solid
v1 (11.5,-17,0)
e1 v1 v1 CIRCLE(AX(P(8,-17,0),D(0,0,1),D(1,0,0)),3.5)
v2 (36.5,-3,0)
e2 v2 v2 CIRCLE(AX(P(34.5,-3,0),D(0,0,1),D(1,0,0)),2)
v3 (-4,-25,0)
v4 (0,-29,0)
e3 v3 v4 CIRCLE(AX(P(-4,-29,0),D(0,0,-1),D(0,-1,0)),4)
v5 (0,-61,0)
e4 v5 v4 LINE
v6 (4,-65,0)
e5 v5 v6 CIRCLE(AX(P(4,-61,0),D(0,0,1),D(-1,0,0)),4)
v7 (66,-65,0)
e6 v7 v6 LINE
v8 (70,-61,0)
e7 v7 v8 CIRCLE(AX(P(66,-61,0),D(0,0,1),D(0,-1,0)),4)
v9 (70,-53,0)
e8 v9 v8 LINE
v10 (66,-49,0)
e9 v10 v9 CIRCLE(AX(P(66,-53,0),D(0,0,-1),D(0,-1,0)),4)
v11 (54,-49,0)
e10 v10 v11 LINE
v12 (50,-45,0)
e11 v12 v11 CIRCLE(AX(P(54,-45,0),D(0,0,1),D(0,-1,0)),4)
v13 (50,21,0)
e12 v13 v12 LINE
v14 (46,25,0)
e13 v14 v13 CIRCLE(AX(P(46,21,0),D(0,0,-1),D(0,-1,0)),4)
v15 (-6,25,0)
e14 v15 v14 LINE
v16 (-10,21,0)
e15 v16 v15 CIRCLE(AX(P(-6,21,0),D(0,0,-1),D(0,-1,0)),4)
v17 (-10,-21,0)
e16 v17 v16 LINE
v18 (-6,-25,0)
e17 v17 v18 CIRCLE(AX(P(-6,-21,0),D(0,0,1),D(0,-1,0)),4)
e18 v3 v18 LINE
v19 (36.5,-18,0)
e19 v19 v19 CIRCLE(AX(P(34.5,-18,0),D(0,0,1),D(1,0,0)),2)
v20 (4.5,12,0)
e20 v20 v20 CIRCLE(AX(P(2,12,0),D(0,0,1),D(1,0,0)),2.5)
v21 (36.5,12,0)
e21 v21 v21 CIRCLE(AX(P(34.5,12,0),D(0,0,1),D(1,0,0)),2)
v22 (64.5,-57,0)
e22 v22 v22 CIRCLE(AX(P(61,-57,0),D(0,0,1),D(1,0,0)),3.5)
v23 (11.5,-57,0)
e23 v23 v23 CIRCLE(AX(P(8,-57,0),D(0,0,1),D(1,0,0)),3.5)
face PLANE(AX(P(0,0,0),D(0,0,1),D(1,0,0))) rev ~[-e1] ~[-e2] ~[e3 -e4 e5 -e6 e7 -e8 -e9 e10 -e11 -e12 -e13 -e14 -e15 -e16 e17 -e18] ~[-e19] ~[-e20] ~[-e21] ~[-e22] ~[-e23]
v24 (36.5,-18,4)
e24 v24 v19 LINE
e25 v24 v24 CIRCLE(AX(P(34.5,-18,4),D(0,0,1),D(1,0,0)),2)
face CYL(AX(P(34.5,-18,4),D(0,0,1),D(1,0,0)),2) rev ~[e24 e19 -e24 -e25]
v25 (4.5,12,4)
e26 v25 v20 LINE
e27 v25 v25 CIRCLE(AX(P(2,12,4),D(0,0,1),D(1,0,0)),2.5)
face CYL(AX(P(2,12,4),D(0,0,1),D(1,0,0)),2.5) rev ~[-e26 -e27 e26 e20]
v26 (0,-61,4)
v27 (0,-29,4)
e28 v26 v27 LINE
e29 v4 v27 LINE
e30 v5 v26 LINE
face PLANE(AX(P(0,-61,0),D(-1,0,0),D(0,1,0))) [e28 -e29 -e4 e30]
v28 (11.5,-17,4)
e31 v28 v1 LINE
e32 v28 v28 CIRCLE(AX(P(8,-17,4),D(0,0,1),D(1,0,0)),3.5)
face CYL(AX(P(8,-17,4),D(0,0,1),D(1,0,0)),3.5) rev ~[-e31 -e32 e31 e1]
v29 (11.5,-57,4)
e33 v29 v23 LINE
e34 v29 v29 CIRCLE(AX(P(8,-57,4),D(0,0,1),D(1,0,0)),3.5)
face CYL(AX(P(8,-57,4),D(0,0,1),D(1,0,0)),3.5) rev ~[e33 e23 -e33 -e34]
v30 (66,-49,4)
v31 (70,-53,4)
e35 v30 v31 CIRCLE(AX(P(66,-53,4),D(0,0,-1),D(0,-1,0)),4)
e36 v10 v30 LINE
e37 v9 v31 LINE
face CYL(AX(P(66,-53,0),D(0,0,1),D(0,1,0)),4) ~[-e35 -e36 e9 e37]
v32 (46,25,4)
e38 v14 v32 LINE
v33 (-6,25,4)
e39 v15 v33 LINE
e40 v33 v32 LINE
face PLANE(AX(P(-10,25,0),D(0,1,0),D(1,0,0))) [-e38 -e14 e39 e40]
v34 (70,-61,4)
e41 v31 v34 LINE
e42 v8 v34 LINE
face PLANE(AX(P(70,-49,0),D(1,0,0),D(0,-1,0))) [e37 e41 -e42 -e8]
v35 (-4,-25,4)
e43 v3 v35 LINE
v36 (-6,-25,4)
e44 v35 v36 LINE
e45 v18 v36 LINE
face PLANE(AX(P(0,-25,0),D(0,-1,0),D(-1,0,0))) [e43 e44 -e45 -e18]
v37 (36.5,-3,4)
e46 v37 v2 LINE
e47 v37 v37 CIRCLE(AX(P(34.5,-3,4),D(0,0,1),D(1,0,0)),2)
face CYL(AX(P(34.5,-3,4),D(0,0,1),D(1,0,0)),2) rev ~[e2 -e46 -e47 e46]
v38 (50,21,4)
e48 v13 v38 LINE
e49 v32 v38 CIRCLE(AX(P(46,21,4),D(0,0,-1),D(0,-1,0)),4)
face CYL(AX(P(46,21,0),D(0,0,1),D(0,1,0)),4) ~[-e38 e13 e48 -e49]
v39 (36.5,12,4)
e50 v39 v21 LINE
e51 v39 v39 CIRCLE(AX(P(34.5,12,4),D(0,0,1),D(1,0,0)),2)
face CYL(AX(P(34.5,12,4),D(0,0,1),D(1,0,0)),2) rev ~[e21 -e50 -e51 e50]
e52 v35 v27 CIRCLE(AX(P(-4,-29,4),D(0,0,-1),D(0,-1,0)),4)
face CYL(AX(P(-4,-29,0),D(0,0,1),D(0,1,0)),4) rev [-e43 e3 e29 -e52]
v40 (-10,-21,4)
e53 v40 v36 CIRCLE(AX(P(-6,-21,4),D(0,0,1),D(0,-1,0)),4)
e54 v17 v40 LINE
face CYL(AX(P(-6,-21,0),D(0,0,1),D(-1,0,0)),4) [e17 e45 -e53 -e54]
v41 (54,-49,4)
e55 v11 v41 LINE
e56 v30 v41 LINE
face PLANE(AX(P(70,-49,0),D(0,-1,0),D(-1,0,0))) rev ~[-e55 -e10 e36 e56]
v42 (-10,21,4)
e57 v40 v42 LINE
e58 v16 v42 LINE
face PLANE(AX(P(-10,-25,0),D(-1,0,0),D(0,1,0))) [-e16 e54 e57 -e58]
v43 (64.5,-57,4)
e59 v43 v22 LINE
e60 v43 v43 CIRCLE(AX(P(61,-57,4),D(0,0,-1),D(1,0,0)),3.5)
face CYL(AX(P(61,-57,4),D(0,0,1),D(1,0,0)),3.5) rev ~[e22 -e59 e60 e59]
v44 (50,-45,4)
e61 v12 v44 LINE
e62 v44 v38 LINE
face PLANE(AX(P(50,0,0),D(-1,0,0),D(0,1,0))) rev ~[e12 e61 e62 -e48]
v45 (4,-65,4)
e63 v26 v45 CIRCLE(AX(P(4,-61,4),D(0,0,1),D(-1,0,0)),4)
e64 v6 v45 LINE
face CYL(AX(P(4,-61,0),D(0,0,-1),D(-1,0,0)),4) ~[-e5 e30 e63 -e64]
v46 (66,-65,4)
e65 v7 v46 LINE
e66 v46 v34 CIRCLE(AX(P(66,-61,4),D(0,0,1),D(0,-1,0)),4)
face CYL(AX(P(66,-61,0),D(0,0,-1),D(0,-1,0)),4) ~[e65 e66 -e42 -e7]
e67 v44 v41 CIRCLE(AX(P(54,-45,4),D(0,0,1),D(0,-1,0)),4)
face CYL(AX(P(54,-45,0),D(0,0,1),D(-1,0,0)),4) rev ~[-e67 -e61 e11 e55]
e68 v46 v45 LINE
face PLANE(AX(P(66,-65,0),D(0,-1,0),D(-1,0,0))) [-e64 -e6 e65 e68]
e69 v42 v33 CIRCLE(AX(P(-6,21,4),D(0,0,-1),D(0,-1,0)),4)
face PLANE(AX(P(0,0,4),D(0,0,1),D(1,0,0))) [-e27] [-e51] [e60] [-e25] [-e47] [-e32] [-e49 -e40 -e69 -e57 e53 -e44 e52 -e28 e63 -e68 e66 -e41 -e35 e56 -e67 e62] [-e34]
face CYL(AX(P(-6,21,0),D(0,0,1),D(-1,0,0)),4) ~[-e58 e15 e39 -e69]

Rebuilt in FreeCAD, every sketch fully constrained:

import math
import FreeCAD as App
import Part
import Sketcher
Q = App.Units.Quantity


def edges_at(feature, points):
    """Names of the edges that pass closest to the given points."""
    edges = feature.Shape.Edges
    near = lambda p: min(range(len(edges)), key=lambda i: edges[i].distToShape(Part.Vertex(*p))[0])
    return sorted({f"Edge{near(p) + 1}" for p in points})

doc = App.newDocument("Part")
body = doc.addObject("PartDesign::Body", "Body")

# Sketch on XY plane
sketch1 = doc.addObject("Sketcher::SketchObject", "Sketch")
body.addObject(sketch1)
sketch1.AttachmentSupport = (doc.XY_Plane, [""])
sketch1.MapMode = "FlatFace"
sketch1.addGeometry([
    Part.LineSegment(App.Vector(-10, -25, 0), App.Vector(0, -25, 0)),  # 0
    Part.LineSegment(App.Vector(0, -25, 0), App.Vector(0, -61, 0)),  # 1
    Part.ArcOfCircle(Part.Circle(App.Vector(4, -61, 0), App.Vector(0, 0, 1), 4), math.radians(180), math.radians(270)),  # 2
    Part.LineSegment(App.Vector(4, -65, 0), App.Vector(66, -65, 0)),  # 3
    Part.ArcOfCircle(Part.Circle(App.Vector(66, -61, 0), App.Vector(0, 0, 1), 4), math.radians(-90), math.radians(0)),  # 4
    Part.LineSegment(App.Vector(70, -61, 0), App.Vector(70, -49, 0)),  # 5
    Part.LineSegment(App.Vector(70, -49, 0), App.Vector(50, -49, 0)),  # 6
    Part.LineSegment(App.Vector(50, -49, 0), App.Vector(50, 25, 0)),  # 7
    Part.LineSegment(App.Vector(50, 25, 0), App.Vector(-10, 25, 0)),  # 8
    Part.LineSegment(App.Vector(-10, 25, 0), App.Vector(-10, -25, 0)),  # 9
], False)
sketch1.addConstraint([
    Sketcher.Constraint("Coincident", 0, 2, 1, 1),
    Sketcher.Constraint("Tangent", 1, 2, 2, 1),
    Sketcher.Constraint("Tangent", 2, 2, 3, 1),
    Sketcher.Constraint("Tangent", 3, 2, 4, 1),
    Sketcher.Constraint("Tangent", 4, 2, 5, 1),
    Sketcher.Constraint("Coincident", 5, 2, 6, 1),
    Sketcher.Constraint("Coincident", 6, 2, 7, 1),
    Sketcher.Constraint("Coincident", 7, 2, 8, 1),
    Sketcher.Constraint("Coincident", 8, 2, 9, 1),
    Sketcher.Constraint("Coincident", 9, 2, 0, 1),
    Sketcher.Constraint("Horizontal", 0),
    Sketcher.Constraint("Vertical", 1),
    Sketcher.Constraint("Horizontal", 3),
    Sketcher.Constraint("Vertical", 5),
    Sketcher.Constraint("Horizontal", 6),
    Sketcher.Constraint("Vertical", 7),
    Sketcher.Constraint("Horizontal", 8),
    Sketcher.Constraint("Vertical", 9),
    Sketcher.Constraint("Equal", 2, 4),
    Sketcher.Constraint("PointOnObject", 0, 2, -2),
    Sketcher.Constraint("Radius", 2, Q("4 mm")),
    Sketcher.Constraint("DistanceX", 6, 2, 6, 1, Q("20 mm")),
    Sketcher.Constraint("DistanceY", 9, 2, 9, 1, Q("50 mm")),
    Sketcher.Constraint("DistanceY", 0, 2, -1, 1, Q("25 mm")),
    Sketcher.Constraint("DistanceY", 2, 2, -1, 1, Q("65 mm")),
    Sketcher.Constraint("DistanceX", -1, 1, 4, 2, Q("70 mm")),
    Sketcher.Constraint("DistanceY", 3, 2, 5, 2, Q("16 mm")),
    Sketcher.Constraint("DistanceX", 0, 1, 0, 2, Q("10 mm")),
])
pad1 = doc.addObject("PartDesign::Pad", "Pad")
body.addObject(pad1)
pad1.Profile = sketch1
pad1.Length = 4

# Sketch on XY plane
sketch2 = doc.addObject("Sketcher::SketchObject", "Sketch001")
body.addObject(sketch2)
sketch2.AttachmentSupport = (doc.XY_Plane, [""])
sketch2.MapMode = "FlatFace"
sketch2.AttachmentOffset = App.Placement(App.Vector(0, 0, 4), App.Rotation())
sketch2.addGeometry([
    Part.Circle(App.Vector(61, -57, 0), App.Vector(0, 0, 1), 3.5),  # 0
    Part.Circle(App.Vector(8, -57, 0), App.Vector(0, 0, 1), 3.5),  # 1
    Part.Circle(App.Vector(61, -17, 0), App.Vector(0, 0, 1), 3.5),  # 2
    Part.Circle(App.Vector(8, -17, 0), App.Vector(0, 0, 1), 3.5),  # 3
    Part.Circle(App.Vector(54.5, 12, 0), App.Vector(0, 0, 1), 2.5),  # 4
    Part.Circle(App.Vector(2, 12, 0), App.Vector(0, 0, 1), 2.5),  # 5
], False)
sketch2.addConstraint([
    Sketcher.Constraint("Equal", 0, 1),
    Sketcher.Constraint("Equal", 1, 2),
    Sketcher.Constraint("Equal", 2, 3),
    Sketcher.Constraint("Equal", 4, 5),
    Sketcher.Constraint("Horizontal", 0, 3, 1, 3),
    Sketcher.Constraint("Horizontal", 2, 3, 3, 3),
    Sketcher.Constraint("Horizontal", 4, 3, 5, 3),
    Sketcher.Constraint("Vertical", 0, 3, 2, 3),
    Sketcher.Constraint("Vertical", 1, 3, 3, 3),
    Sketcher.Constraint("Diameter", 0, Q("7 mm")),
    Sketcher.Constraint("Diameter", 4, Q("5 mm")),
    Sketcher.Constraint("DistanceX", -1, 1, 1, 3, Q("8 mm")),
    Sketcher.Constraint("DistanceY", -1, 1, 4, 3, Q("12 mm")),
    Sketcher.Constraint("DistanceX", 1, 3, 0, 3, Q("53 mm")),
    Sketcher.Constraint("DistanceY", 0, 3, 2, 3, Q("40 mm")),
    Sketcher.Constraint("DistanceY", 2, 3, 4, 3, Q("29 mm")),
    Sketcher.Constraint("DistanceX", 4, 3, 2, 3, Q("6.5 mm")),
    Sketcher.Constraint("DistanceX", -1, 1, 5, 3, Q("2 mm")),
])
pocket1 = doc.addObject("PartDesign::Pocket", "Pocket")
body.addObject(pocket1)
pocket1.Profile = sketch2
pocket1.Length = 4
doc.recompute()

fillet = doc.addObject("PartDesign::Fillet", "Fillet")
body.addObject(fillet)
fillet.Base = (pocket1, edges_at(pocket1, [(-10, 25, 2)]))
fillet.Radius = 4

# Sketch on XY plane
sketch3 = doc.addObject("Sketcher::SketchObject", "Sketch002")
body.addObject(sketch3)
sketch3.AttachmentSupport = (doc.XY_Plane, [""])
sketch3.MapMode = "FlatFace"
sketch3.AttachmentOffset = App.Placement(App.Vector(0, 0, 4), App.Rotation())
sketch3.addGeometry([
    Part.Circle(App.Vector(34.5, 12, 0), App.Vector(0, 0, 1), 2),
    Part.Circle(App.Vector(34.5, -3, 0), App.Vector(0, 0, 1), 2),
    Part.Circle(App.Vector(34.5, -18, 0), App.Vector(0, 0, 1), 2),
], False)
sketch3.addConstraint([
    Sketcher.Constraint("Equal", 0, 1),
    Sketcher.Constraint("Equal", 1, 2),
    Sketcher.Constraint("Vertical", 0, 3, 1, 3),
    Sketcher.Constraint("Vertical", 1, 3, 2, 3),
    Sketcher.Constraint("Diameter", 0, Q("4 mm")),
    Sketcher.Constraint("DistanceY", 1, 3, 0, 3, Q("15 mm")),
    Sketcher.Constraint("DistanceY", 2, 3, 1, 3, Q("15 mm")),
    Sketcher.Constraint("DistanceY", -1, 1, 0, 3, Q("12 mm")),
    Sketcher.Constraint("DistanceX", -1, 1, 0, 3, Q("34.5 mm")),
])
pocket2 = doc.addObject("PartDesign::Pocket", "Pocket001")
body.addObject(pocket2)
pocket2.Profile = sketch3
pocket2.Length = 10
doc.recompute()

fillet2 = doc.addObject("PartDesign::Fillet", "Fillet001")
body.addObject(fillet2)
fillet2.Base = (pocket2, edges_at(pocket2, [(50, 25, 2), (50, -49, 2), (70, -49, 2)]))
fillet2.Radius = 4
doc.recompute()

fillet3 = doc.addObject("PartDesign::Fillet", "Fillet002")
body.addObject(fillet3)
fillet3.Base = (fillet2, edges_at(fillet2, [(0, -25, 2), (-10, -25, 2)]))
fillet3.Radius = 4

doc.recompute()
